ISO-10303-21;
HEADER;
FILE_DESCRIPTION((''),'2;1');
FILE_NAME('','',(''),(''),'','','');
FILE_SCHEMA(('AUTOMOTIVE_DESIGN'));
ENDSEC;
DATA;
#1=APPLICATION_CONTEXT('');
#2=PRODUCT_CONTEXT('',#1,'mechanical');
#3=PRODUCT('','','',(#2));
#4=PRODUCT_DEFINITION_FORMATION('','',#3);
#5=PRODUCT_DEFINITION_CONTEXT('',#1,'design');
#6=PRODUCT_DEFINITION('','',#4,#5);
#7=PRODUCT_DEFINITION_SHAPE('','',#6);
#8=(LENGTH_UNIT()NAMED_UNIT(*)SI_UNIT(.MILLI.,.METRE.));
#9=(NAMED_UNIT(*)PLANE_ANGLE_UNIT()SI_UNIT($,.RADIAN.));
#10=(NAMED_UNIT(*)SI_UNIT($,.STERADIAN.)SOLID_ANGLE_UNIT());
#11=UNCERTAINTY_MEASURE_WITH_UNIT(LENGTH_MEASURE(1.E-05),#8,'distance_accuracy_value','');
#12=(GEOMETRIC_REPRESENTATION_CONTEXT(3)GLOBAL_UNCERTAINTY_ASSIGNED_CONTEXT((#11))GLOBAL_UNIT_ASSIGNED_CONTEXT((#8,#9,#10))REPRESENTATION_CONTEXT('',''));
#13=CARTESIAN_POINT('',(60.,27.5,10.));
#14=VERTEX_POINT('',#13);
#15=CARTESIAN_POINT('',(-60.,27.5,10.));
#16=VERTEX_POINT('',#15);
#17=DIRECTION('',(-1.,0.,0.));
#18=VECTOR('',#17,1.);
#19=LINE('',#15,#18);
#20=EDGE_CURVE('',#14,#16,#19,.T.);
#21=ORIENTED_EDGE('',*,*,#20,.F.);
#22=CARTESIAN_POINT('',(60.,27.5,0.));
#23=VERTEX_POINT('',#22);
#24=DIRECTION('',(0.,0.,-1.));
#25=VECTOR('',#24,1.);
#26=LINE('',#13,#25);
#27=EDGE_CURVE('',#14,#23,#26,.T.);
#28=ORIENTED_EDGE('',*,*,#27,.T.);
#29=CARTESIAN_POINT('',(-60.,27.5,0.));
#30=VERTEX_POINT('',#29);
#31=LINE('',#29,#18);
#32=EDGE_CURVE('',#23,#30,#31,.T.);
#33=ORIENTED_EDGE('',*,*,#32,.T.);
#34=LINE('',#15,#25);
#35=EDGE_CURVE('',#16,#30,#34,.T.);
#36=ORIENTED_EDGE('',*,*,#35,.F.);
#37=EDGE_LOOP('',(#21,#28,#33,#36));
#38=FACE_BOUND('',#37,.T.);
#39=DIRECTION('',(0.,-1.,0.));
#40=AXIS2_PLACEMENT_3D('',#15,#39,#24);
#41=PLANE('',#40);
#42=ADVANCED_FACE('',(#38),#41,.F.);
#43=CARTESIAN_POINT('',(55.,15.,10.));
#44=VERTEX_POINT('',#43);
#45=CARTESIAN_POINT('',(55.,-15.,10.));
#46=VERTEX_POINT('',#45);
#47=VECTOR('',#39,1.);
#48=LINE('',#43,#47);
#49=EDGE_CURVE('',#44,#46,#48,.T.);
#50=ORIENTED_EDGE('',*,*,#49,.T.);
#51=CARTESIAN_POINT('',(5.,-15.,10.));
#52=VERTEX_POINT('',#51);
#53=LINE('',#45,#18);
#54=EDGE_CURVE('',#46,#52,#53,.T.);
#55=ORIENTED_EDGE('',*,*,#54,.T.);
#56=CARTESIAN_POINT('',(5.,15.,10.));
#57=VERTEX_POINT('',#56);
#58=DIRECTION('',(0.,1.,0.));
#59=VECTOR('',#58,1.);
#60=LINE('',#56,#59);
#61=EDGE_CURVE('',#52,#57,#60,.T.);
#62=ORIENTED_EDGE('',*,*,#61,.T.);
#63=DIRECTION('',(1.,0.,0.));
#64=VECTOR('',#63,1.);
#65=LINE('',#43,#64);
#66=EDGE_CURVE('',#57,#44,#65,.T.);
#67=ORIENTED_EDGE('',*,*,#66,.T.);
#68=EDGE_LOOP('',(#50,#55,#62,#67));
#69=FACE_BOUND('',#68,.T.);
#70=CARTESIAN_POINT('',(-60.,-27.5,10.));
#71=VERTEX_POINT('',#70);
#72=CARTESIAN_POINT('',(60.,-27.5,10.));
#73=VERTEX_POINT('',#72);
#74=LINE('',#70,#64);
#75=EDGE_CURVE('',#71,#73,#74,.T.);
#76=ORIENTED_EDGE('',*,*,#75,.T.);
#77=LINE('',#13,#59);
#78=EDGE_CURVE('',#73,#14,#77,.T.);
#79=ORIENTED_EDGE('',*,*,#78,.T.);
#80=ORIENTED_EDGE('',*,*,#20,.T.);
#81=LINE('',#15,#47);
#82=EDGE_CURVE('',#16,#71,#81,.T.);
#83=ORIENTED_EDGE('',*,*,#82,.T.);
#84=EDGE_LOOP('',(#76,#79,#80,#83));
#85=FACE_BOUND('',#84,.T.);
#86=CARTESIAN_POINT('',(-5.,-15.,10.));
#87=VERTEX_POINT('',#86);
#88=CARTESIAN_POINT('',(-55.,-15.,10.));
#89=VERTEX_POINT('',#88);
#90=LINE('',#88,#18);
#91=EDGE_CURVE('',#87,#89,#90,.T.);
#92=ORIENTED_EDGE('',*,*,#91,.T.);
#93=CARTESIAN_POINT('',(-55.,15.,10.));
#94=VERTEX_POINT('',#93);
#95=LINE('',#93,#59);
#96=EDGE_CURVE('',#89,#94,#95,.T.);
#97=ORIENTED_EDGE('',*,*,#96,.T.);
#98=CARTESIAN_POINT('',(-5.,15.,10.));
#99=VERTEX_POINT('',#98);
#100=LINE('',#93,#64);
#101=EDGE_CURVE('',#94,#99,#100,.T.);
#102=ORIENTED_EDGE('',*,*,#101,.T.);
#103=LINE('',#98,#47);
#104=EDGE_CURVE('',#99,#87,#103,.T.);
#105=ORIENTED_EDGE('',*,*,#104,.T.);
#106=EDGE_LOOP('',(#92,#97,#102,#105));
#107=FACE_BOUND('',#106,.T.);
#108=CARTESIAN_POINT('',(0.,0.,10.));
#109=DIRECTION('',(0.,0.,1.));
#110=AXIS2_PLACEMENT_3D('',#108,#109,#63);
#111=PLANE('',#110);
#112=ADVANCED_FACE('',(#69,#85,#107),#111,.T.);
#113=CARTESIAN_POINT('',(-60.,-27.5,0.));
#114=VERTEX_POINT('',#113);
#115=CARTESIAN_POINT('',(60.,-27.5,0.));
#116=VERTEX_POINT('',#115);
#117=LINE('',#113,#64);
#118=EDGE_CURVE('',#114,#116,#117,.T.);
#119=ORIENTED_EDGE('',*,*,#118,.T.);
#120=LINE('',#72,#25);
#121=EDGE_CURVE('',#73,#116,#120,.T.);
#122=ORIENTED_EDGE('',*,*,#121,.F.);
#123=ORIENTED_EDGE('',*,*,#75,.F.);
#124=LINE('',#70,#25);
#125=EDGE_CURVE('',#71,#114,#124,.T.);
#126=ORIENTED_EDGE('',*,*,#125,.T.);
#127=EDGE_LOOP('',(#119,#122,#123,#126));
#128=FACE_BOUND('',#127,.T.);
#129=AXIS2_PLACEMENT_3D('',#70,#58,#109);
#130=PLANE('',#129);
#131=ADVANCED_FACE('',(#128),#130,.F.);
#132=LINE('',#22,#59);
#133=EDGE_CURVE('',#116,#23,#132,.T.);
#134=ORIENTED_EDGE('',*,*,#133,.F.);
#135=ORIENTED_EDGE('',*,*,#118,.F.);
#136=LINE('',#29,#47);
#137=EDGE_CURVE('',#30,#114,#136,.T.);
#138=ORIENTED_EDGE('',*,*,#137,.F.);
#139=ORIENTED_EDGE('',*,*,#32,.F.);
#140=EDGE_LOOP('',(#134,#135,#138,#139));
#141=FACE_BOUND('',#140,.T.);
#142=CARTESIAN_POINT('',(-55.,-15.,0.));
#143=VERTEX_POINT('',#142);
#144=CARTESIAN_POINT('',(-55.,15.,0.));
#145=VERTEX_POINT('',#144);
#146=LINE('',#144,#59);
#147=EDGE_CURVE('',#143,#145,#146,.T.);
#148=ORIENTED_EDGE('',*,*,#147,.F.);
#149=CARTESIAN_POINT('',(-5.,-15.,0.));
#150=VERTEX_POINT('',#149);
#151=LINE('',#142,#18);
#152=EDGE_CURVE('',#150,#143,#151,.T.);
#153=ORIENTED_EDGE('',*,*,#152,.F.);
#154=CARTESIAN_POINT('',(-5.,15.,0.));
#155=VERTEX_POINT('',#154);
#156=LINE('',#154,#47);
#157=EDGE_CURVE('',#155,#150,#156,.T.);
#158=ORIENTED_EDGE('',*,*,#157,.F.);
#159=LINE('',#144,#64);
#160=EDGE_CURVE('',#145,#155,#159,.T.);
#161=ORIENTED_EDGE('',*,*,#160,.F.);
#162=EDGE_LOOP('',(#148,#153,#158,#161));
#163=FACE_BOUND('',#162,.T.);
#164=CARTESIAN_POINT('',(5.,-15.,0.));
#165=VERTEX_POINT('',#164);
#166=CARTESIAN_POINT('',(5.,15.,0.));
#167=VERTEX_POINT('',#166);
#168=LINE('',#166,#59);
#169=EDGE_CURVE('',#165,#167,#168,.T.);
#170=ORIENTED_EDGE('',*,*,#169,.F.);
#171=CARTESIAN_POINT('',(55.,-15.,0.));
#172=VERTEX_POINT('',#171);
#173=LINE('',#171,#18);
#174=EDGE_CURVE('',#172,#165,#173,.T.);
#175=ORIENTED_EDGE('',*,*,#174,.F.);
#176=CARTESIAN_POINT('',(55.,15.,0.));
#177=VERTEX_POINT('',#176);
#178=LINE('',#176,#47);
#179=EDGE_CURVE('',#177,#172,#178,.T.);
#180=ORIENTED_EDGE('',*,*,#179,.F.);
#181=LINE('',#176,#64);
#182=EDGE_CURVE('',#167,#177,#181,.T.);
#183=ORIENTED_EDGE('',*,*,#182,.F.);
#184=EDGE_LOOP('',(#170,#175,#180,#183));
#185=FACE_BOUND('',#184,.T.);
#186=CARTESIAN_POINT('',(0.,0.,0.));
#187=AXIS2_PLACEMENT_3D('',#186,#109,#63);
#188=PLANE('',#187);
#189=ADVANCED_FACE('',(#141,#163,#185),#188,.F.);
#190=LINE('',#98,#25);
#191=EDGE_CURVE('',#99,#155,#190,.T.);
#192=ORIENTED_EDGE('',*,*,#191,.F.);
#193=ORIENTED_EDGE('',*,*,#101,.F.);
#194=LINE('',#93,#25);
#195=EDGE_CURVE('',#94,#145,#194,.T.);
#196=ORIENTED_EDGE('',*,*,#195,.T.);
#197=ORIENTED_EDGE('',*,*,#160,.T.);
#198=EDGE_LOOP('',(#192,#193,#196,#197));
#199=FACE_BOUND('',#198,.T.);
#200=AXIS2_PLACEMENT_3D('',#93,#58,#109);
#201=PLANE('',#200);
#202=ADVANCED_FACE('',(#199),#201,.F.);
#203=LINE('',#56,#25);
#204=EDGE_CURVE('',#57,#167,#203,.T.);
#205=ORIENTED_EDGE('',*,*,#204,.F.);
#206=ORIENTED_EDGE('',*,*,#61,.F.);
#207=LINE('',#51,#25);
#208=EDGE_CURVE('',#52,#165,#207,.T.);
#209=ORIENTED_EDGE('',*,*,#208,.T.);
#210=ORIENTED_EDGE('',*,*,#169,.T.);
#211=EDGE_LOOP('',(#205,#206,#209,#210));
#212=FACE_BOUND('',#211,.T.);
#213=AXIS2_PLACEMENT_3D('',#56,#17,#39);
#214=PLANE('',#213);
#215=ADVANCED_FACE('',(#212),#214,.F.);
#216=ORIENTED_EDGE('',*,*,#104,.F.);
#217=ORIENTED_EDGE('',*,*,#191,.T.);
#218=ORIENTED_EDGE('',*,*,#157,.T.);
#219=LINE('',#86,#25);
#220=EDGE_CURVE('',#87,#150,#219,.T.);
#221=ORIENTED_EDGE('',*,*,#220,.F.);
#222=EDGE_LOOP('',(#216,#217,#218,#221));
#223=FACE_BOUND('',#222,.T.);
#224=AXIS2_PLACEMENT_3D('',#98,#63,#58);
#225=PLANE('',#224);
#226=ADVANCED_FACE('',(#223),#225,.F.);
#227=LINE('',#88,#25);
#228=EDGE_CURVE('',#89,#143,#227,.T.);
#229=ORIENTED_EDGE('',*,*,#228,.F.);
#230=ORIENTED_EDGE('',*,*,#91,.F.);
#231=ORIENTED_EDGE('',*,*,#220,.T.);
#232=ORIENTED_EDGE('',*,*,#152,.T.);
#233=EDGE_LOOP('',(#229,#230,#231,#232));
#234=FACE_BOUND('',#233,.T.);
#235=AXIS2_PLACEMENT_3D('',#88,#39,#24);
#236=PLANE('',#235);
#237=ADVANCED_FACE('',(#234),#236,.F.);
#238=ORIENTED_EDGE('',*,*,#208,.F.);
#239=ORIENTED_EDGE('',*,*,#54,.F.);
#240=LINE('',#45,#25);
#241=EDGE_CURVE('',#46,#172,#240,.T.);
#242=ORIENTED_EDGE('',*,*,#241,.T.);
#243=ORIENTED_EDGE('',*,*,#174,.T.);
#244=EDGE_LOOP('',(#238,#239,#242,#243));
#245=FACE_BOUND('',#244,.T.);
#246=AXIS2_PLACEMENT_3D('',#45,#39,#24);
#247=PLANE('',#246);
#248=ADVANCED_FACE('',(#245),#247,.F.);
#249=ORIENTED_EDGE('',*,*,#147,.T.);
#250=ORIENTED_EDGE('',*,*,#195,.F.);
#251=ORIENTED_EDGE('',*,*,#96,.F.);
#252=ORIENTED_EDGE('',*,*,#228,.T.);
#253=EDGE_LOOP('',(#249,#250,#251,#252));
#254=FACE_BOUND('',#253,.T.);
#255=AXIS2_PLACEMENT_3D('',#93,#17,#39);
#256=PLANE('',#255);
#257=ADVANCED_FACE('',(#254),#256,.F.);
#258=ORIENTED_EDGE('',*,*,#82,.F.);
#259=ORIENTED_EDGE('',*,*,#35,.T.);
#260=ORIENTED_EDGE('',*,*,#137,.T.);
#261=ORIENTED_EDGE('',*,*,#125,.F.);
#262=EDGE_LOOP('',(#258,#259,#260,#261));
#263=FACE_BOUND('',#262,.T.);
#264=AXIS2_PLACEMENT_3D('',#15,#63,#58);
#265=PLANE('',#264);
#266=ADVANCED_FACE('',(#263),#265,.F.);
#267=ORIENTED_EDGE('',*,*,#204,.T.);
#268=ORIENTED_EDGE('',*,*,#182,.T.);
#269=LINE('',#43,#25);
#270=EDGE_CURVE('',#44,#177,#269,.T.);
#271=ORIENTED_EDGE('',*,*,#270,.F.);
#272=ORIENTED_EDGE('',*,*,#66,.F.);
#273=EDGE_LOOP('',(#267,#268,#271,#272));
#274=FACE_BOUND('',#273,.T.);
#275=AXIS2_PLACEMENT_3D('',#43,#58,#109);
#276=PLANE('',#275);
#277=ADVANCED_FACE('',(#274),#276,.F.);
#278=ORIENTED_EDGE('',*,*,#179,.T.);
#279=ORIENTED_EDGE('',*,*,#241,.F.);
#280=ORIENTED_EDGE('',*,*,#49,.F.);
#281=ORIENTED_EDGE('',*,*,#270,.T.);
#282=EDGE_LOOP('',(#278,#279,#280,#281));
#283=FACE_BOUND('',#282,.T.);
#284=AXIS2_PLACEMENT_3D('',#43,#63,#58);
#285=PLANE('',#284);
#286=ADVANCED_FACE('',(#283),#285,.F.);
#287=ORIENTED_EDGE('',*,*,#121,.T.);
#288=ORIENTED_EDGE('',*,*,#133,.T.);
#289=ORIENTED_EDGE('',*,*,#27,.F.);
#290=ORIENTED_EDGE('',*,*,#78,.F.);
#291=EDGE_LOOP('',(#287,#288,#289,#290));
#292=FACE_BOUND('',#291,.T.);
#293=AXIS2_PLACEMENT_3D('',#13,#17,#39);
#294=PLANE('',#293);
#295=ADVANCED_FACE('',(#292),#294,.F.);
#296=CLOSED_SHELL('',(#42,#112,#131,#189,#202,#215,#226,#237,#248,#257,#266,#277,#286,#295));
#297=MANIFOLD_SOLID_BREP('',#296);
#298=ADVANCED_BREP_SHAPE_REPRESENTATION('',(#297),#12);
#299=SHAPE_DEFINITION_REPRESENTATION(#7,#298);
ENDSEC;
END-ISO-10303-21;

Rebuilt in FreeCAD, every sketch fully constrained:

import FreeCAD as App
import Part
import Sketcher
Q = App.Units.Quantity


def add_polygon(sketch, points):
    """Adds a closed chain of lines whose ends are joined by coincident constraints."""
    first, n = sketch.GeometryCount, len(points)
    for a, b in zip(points, points[1:] + points[:1]):
        sketch.addGeometry(Part.LineSegment(App.Vector(*a, 0), App.Vector(*b, 0)), False)
    for i in range(n):
        sketch.addConstraint(Sketcher.Constraint("Coincident", first + i, 2, first + (i + 1) % n, 1))

doc = App.newDocument("Part")
params = doc.addObject("Spreadsheet::Sheet", "Params")
for row, (alias, value) in enumerate([
    ("sketch1_width", "120 mm"),
    ("sketch1_height", "55 mm"),
    ("pad1_length", "10 mm"),
    ("sketch2_width", "50 mm"),
    ("sketch2_height", "30 mm"),
    ("pocket1_length", "10 mm"),
], start=1):
    params.set(f"A{row}", alias)
    params.set(f"B{row}", "=" + value)
    params.setAlias(f"B{row}", alias)

body = doc.addObject("PartDesign::Body", "Body")

# Sketch on XY plane
sketch1 = body.newObject("Sketcher::SketchObject", "Sketch")
sketch1.AttachmentSupport = (doc.getObject("XY_Plane"), [""])
sketch1.MapMode = "FlatFace"
add_polygon(sketch1, [(-60, 28), (-60, -28), (60, -28), (60, 28)])  # lines 0-3
sketch1.addConstraint(Sketcher.Constraint("Vertical", 0))
sketch1.addConstraint(Sketcher.Constraint("Horizontal", 1))
sketch1.addConstraint(Sketcher.Constraint("Vertical", 2))
sketch1.addConstraint(Sketcher.Constraint("Horizontal", 3))
sketch1.addConstraint(Sketcher.Constraint("Symmetric", 0, 2, 2, 2, -1, 1))
sketch1.addConstraint(Sketcher.Constraint("DistanceX", 1, 1, 1, 2, Q("120 mm")))
sketch1.addConstraint(Sketcher.Constraint("DistanceY", 0, 2, 0, 1, Q("55 mm")))
sketch1.setExpression("Constraints[9]", "Params.sketch1_width")
sketch1.setExpression("Constraints[10]", "Params.sketch1_height")
pad1 = body.newObject("PartDesign::Pad", "Pad")
pad1.Profile = sketch1
pad1.setExpression("Length", "Params.pad1_length")

# Sketch on XY plane
sketch2 = body.newObject("Sketcher::SketchObject", "Sketch001")
sketch2.AttachmentSupport = (doc.getObject("XY_Plane"), [""])
sketch2.MapMode = "FlatFace"
add_polygon(sketch2, [(55, 15), (55, -15), (5, -15), (5, 15)])  # lines 0-3
add_polygon(sketch2, [(-5, 15), (-5, -15), (-55, -15), (-55, 15)])  # lines 4-7
sketch2.addConstraint(Sketcher.Constraint("Vertical", 0))
sketch2.addConstraint(Sketcher.Constraint("Horizontal", 1))
sketch2.addConstraint(Sketcher.Constraint("Vertical", 2))
sketch2.addConstraint(Sketcher.Constraint("Horizontal", 3))
sketch2.addConstraint(Sketcher.Constraint("Vertical", 4))
sketch2.addConstraint(Sketcher.Constraint("Horizontal", 5))
sketch2.addConstraint(Sketcher.Constraint("Vertical", 6))
sketch2.addConstraint(Sketcher.Constraint("Horizontal", 7))
sketch2.addConstraint(Sketcher.Constraint("Symmetric", 2, 2, 4, 2, -1, 1))
sketch2.addConstraint(Sketcher.Constraint("Symmetric", 0, 2, 6, 2, -1, 1))
sketch2.addConstraint(Sketcher.Constraint("Horizontal", 1, 2, 4, 2))
sketch2.addConstraint(Sketcher.Constraint("DistanceX", 1, 2, 1, 1, Q("50 mm")))
sketch2.addConstraint(Sketcher.Constraint("DistanceY", 0, 2, 0, 1, Q("30 mm")))
sketch2.addConstraint(Sketcher.Constraint("DistanceX", -1, 1, 0, 2, Q("55 mm")))
sketch2.setExpression("Constraints[19]", "Params.sketch2_width")
sketch2.setExpression("Constraints[20]", "Params.sketch2_height")
pocket1 = body.newObject("PartDesign::Pocket", "Pocket")
pocket1.Profile = sketch2
pocket1.setExpression("Length", "Params.pocket1_length")
pocket1.Reversed = True

doc.recompute()
